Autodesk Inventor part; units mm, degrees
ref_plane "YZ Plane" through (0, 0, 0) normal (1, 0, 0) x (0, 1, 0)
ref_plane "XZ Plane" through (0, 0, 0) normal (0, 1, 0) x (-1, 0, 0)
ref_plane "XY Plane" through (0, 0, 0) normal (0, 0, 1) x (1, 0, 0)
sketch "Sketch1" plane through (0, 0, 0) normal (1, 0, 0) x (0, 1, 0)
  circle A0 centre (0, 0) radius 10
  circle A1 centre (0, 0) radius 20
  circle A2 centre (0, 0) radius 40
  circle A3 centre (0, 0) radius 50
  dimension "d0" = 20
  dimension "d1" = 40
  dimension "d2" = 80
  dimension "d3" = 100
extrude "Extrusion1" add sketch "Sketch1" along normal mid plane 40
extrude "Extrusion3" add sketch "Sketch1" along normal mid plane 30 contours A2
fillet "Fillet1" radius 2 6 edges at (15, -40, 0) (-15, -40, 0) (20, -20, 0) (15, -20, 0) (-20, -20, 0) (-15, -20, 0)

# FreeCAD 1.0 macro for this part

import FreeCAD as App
import Part
import Sketcher
Q = App.Units.Quantity


def edges_at(feature, points):
    """Names of the edges that pass closest to the given points."""
    edges = feature.Shape.Edges
    near = lambda p: min(range(len(edges)), key=lambda i: edges[i].distToShape(Part.Vertex(*p))[0])
    return sorted({f"Edge{near(p) + 1}" for p in points})

doc = App.newDocument("Part")
body = doc.addObject("PartDesign::Body", "Body")
body.AllowCompound = True

sketch1 = doc.addObject("Sketcher::SketchObject", "Sketch")
body.addObject(sketch1)
sketch1.AttachmentSupport = (doc.YZ_Plane, [""])
sketch1.MapMode = "FlatFace"
sketch1.addGeometry([
    Part.Circle(App.Vector(0, 0, 0), App.Vector(0, 0, 1), 20),
    Part.Circle(App.Vector(0, 0, 0), App.Vector(0, 0, 1), 10),
    Part.Circle(App.Vector(0, 0, 0), App.Vector(0, 0, 1), 50),
    Part.Circle(App.Vector(0, 0, 0), App.Vector(0, 0, 1), 40),
], False)
sketch1.addConstraint([
    Sketcher.Constraint("Coincident", 0, 3, -1, 1),
    Sketcher.Constraint("Coincident", 1, 3, -1, 1),
    Sketcher.Constraint("Coincident", 2, 3, -1, 1),
    Sketcher.Constraint("Coincident", 3, 3, -1, 1),
    Sketcher.Constraint("Diameter", 0, Q("40 mm")),
    Sketcher.Constraint("Diameter", 1, Q("20 mm")),
    Sketcher.Constraint("Diameter", 2, Q("100 mm")),
    Sketcher.Constraint("Diameter", 3, Q("80 mm")),
])
pad1 = doc.addObject("PartDesign::Pad", "Pad")
body.addObject(pad1)
pad1.Profile = sketch1
pad1.Length = 40
pad1.Midplane = True

sketch2 = doc.addObject("Sketcher::SketchObject", "Sketch001")
body.addObject(sketch2)
sketch2.AttachmentSupport = (doc.YZ_Plane, [""])
sketch2.MapMode = "FlatFace"
sketch2.addGeometry([
    Part.Circle(App.Vector(0, 0, 0), App.Vector(0, 0, 1), 40),
    Part.Circle(App.Vector(0, 0, 0), App.Vector(0, 0, 1), 20),
], False)
sketch2.addConstraint([
    Sketcher.Constraint("Coincident", 0, 3, -1, 1),
    Sketcher.Constraint("Coincident", 1, 3, -1, 1),
    Sketcher.Constraint("Diameter", 0, Q("80 mm")),
    Sketcher.Constraint("Diameter", 1, Q("40 mm")),
])
pad2 = doc.addObject("PartDesign::Pad", "Pad001")
body.addObject(pad2)
pad2.Profile = sketch2
pad2.Length = 30
pad2.Midplane = True
doc.recompute()

fillet = doc.addObject("PartDesign::Fillet", "Fillet")
body.addObject(fillet)
fillet.Base = (pad2, edges_at(pad2, [
    (15, -40, 0),
    (-15, -40, 0),
    (20, -20, 0),
    (15, -20, 0),
    (-20, -20, 0),
    (-15, -20, 0),
]))
fillet.Radius = 2

doc.recompute()
